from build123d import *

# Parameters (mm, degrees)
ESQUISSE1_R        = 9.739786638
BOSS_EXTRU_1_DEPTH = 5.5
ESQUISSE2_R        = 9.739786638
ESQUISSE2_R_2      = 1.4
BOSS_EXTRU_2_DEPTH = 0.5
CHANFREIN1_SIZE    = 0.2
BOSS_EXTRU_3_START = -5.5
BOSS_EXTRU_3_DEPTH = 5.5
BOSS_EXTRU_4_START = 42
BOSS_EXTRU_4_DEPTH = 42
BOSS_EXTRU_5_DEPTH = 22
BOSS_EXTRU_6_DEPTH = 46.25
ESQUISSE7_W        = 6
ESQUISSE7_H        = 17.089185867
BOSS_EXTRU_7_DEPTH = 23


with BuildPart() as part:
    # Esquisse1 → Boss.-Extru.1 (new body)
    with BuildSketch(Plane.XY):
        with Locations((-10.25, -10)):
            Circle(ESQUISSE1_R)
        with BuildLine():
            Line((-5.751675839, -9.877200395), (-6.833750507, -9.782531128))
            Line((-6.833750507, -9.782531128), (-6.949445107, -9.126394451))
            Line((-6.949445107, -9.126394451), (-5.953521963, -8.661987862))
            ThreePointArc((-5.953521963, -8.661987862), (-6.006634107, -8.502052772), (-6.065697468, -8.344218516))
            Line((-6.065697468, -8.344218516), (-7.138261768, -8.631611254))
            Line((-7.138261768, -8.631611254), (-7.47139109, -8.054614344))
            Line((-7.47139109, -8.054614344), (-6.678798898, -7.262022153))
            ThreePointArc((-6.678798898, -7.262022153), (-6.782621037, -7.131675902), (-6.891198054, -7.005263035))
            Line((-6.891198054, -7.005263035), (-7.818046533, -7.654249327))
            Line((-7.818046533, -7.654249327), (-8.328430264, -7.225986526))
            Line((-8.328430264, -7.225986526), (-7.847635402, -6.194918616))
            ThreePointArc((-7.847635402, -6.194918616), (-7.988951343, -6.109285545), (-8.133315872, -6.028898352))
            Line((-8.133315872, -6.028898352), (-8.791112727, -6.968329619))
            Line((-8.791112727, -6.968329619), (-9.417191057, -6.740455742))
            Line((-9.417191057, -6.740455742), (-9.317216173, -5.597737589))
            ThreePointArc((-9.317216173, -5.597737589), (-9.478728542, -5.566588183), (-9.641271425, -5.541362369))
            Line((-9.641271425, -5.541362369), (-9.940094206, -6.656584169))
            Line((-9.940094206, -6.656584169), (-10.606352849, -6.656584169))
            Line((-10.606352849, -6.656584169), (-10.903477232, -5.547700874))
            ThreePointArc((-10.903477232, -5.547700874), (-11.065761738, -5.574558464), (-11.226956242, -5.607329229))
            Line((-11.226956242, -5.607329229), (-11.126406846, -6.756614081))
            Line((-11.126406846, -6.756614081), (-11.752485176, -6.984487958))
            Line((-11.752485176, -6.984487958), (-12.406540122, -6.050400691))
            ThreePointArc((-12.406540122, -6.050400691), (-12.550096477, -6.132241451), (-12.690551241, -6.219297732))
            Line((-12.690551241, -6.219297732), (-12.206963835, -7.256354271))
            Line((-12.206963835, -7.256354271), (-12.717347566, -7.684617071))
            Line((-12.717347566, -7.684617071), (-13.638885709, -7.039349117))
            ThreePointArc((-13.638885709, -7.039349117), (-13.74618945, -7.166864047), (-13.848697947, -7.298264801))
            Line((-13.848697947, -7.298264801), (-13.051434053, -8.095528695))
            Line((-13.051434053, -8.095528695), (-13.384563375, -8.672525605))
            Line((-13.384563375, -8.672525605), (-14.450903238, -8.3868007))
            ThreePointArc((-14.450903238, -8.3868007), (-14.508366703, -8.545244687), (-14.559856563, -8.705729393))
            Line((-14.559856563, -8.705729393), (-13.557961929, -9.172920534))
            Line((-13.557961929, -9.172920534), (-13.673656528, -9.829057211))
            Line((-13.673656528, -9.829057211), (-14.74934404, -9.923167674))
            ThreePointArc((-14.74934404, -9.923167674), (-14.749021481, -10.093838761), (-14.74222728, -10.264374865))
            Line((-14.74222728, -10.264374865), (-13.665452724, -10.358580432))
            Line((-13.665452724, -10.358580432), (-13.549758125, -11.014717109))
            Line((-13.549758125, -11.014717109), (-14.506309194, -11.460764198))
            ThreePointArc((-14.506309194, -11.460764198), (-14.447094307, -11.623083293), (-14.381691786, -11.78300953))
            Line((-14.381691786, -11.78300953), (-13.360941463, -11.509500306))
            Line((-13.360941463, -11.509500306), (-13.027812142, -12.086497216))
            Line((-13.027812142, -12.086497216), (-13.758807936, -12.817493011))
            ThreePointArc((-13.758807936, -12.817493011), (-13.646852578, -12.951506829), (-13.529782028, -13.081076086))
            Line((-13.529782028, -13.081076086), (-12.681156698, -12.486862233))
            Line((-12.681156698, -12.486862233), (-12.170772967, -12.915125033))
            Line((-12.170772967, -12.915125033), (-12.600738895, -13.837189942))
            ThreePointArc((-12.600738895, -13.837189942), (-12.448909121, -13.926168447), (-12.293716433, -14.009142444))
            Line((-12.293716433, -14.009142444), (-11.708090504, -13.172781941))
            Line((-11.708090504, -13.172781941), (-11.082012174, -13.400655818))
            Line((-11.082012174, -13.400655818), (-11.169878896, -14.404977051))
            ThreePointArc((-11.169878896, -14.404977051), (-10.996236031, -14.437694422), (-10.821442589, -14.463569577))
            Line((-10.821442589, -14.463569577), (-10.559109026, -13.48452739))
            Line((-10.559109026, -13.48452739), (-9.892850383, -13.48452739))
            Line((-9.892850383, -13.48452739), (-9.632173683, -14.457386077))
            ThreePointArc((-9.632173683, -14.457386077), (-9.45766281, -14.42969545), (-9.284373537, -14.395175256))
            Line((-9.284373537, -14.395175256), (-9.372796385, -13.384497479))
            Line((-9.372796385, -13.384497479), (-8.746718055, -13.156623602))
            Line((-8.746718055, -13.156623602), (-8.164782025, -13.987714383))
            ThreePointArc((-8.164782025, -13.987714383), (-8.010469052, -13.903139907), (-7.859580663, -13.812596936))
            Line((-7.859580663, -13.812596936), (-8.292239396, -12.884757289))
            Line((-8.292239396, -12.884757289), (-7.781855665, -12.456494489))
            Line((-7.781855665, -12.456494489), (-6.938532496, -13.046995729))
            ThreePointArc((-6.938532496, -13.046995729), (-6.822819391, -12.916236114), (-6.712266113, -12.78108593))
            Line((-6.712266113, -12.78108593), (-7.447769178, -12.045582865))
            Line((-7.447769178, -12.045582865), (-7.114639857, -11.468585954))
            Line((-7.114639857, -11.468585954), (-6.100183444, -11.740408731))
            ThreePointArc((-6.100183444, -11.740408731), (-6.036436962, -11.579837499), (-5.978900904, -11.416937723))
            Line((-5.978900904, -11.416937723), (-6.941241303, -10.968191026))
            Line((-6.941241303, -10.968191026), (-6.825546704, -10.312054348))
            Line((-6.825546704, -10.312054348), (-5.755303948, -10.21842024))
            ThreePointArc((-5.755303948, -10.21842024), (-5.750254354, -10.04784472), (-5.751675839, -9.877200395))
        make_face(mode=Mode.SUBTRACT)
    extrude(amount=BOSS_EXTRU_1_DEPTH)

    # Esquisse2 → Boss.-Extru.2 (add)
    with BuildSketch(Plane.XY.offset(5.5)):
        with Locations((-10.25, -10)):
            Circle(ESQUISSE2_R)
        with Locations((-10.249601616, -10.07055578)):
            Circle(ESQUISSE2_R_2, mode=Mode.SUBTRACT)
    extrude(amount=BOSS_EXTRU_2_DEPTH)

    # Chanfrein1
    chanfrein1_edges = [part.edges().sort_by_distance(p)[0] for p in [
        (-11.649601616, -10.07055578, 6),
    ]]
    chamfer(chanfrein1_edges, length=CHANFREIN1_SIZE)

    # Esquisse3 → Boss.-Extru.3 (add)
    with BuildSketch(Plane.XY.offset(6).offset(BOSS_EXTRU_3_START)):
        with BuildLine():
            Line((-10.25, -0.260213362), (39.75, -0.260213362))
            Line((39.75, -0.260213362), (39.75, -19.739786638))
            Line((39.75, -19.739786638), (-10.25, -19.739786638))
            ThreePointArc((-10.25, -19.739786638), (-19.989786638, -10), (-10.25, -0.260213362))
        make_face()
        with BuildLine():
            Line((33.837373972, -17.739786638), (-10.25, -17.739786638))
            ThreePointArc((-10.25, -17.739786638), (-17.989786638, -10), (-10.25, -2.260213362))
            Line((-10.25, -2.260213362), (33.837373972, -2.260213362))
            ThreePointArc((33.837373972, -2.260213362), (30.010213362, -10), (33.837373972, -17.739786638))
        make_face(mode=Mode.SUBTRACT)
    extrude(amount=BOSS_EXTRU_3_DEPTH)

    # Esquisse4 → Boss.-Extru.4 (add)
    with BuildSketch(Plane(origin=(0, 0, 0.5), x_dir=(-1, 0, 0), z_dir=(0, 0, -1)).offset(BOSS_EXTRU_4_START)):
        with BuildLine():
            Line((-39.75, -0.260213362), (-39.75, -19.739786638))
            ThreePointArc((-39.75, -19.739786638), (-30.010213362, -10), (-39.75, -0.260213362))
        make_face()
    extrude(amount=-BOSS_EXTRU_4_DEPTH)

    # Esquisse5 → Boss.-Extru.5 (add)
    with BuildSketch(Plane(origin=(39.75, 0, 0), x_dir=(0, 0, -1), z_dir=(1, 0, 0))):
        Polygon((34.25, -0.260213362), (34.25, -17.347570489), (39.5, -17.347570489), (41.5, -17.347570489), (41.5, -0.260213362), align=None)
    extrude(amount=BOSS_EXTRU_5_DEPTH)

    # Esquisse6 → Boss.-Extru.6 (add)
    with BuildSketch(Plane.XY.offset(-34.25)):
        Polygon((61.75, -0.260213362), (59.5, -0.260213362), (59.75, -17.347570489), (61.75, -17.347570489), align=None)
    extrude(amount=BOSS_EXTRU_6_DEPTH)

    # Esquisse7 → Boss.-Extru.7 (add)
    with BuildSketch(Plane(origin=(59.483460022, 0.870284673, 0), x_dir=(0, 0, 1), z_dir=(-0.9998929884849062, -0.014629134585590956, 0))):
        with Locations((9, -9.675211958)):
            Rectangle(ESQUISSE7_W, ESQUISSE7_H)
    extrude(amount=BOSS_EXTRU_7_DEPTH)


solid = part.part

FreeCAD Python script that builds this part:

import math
import FreeCAD as App
import Part
import Sketcher
from FreeCAD import Vector
Q = App.Units.Quantity


def edges_at(feature, points):
    """Names of the edges that pass closest to the given points."""
    edges = feature.Shape.Edges
    near = lambda p: min(range(len(edges)), key=lambda i: edges[i].distToShape(Part.Vertex(*p))[0])
    return sorted({f"Edge{near(p) + 1}" for p in points})


def add_polygon(sketch, points):
    """Adds a closed chain of lines whose ends are joined by coincident constraints."""
    first, n = sketch.GeometryCount, len(points)
    for a, b in zip(points, points[1:] + points[:1]):
        sketch.addGeometry(Part.LineSegment(App.Vector(*a, 0), App.Vector(*b, 0)), False)
    for i in range(n):
        sketch.addConstraint(Sketcher.Constraint("Coincident", first + i, 2, first + (i + 1) % n, 1))

doc = App.newDocument("Part")
params = doc.addObject("Spreadsheet::Sheet", "Params")
for row, (alias, value) in enumerate([
    ("sketch1_radius", "4.500001 mm"),
    ("pad1_length", "5.5 mm"),
    ("sketch2_diameter", "2.8 mm"),
    ("pad2_length", "0.5 mm"),
    ("chamfer_size", "0.2 mm"),
    ("sketch3_width", "50 mm"),
    ("pad3_length", "5.5 mm"),
    ("pad4_length", "42 mm"),
    ("sketch5_height", "7.25 mm"),
    ("pad5_length", "22 mm"),
    ("sketch6_width", "2 mm"),
    ("sketch6_width2", "2.25 mm"),
    ("pad6_length", "46.25 mm"),
    ("sketch7_width", "6 mm"),
    ("pad7_length", "23 mm"),
], start=1):
    params.set(f"A{row}", alias)
    params.set(f"B{row}", "=" + value)
    params.setAlias(f"B{row}", alias)

body = doc.addObject("PartDesign::Body", "Body")

# Sketch on XY plane
sketch1 = body.newObject("Sketcher::SketchObject", "Sketch")
sketch1.AttachmentSupport = (doc.getObject("XY_Plane"), [""])
sketch1.MapMode = "FlatFace"
sketch1.addGeometry(Part.Circle(Vector(-10.25, -10, 0), Vector(0, 0, 1), 9.74), False)
sketch1.addGeometry(Part.LineSegment(Vector(-6.83, -9.78, 0), Vector(-5.75, -9.88, 0)), False)
sketch1.addGeometry(Part.ArcOfCircle(Part.Circle(Vector(-10.25, -10, 0), Vector(0, 0, 1), 4.5), math.radians(-2.78), math.radians(1.56)), False)
sketch1.addGeometry(Part.LineSegment(Vector(-5.76, -10.22, 0), Vector(-6.83, -10.31, 0)), False)
sketch1.addGeometry(Part.LineSegment(Vector(-6.83, -10.31, 0), Vector(-6.94, -10.97, 0)), False)
sketch1.addGeometry(Part.LineSegment(Vector(-6.94, -10.97, 0), Vector(-5.98, -11.42, 0)), False)
sketch1.addGeometry(Part.ArcOfCircle(Part.Circle(Vector(-10.25, -10, 0), Vector(0, 0, 1), 4.5), math.radians(-22.75), math.radians(-18.35)), False)
sketch1.addGeometry(Part.LineSegment(Vector(-6.1, -11.74, 0), Vector(-7.11, -11.47, 0)), False)
sketch1.addGeometry(Part.LineSegment(Vector(-7.11, -11.47, 0), Vector(-7.45, -12.05, 0)), False)
sketch1.addGeometry(Part.LineSegment(Vector(-7.45, -12.05, 0), Vector(-6.71, -12.78, 0)), False)
sketch1.addGeometry(Part.ArcOfCircle(Part.Circle(Vector(-10.25, -10, 0), Vector(0, 0, 1), 4.5), math.radians(-42.62), math.radians(-38.17)), False)
sketch1.addGeometry(Part.LineSegment(Vector(-6.94, -13.05, 0), Vector(-7.78, -12.46, 0)), False)
sketch1.addGeometry(Part.LineSegment(Vector(-7.78, -12.46, 0), Vector(-8.29, -12.88, 0)), False)
sketch1.addGeometry(Part.LineSegment(Vector(-8.29, -12.88, 0), Vector(-7.86, -13.81, 0)), False)
sketch1.addGeometry(Part.ArcOfCircle(Part.Circle(Vector(-10.25, -10, 0), Vector(0, 0, 1), 4.5), math.radians(-62.39), math.radians(-57.91)), False)
sketch1.addGeometry(Part.LineSegment(Vector(-8.16, -13.99, 0), Vector(-8.75, -13.16, 0)), False)
sketch1.addGeometry(Part.LineSegment(Vector(-8.75, -13.16, 0), Vector(-9.37, -13.38, 0)), False)
sketch1.addGeometry(Part.LineSegment(Vector(-9.37, -13.38, 0), Vector(-9.28, -14.4, 0)), False)
sketch1.addGeometry(Part.ArcOfCircle(Part.Circle(Vector(-10.25, -10, 0), Vector(0, 0, 1), 4.5), math.radians(-82.11), math.radians(-77.61)), False)
sketch1.addGeometry(Part.LineSegment(Vector(-9.63, -14.46, 0), Vector(-9.89, -13.48, 0)), False)
sketch1.addGeometry(Part.LineSegment(Vector(-9.89, -13.48, 0), Vector(-10.56, -13.48, 0)), False)
sketch1.addGeometry(Part.LineSegment(Vector(-10.56, -13.48, 0), Vector(-10.82, -14.46, 0)), False)
sketch1.addGeometry(Part.ArcOfCircle(Part.Circle(Vector(-10.25, -10, 0), Vector(0, 0, 1), 4.5), math.radians(-101.8), math.radians(-97.3)), False)
sketch1.addGeometry(Part.LineSegment(Vector(-11.17, -14.4, 0), Vector(-11.08, -13.4, 0)), False)
sketch1.addGeometry(Part.LineSegment(Vector(-11.08, -13.4, 0), Vector(-11.71, -13.17, 0)), False)
sketch1.addGeometry(Part.LineSegment(Vector(-11.71, -13.17, 0), Vector(-12.29, -14.01, 0)), False)
sketch1.addGeometry(Part.ArcOfCircle(Part.Circle(Vector(-10.25, -10, 0), Vector(0, 0, 1), 4.5), math.radians(-121.49), math.radians(-117.01)), False)
sketch1.addGeometry(Part.LineSegment(Vector(-12.6, -13.84, 0), Vector(-12.17, -12.92, 0)), False)
sketch1.addGeometry(Part.LineSegment(Vector(-12.17, -12.92, 0), Vector(-12.68, -12.49, 0)), False)
sketch1.addGeometry(Part.LineSegment(Vector(-12.68, -12.49, 0), Vector(-13.53, -13.08, 0)), False)
sketch1.addGeometry(Part.ArcOfCircle(Part.Circle(Vector(-10.25, -10, 0), Vector(0, 0, 1), 4.5), math.radians(-141.24), math.radians(-136.79)), False)
sketch1.addGeometry(Part.LineSegment(Vector(-13.76, -12.82, 0), Vector(-13.03, -12.09, 0)), False)
sketch1.addGeometry(Part.LineSegment(Vector(-13.03, -12.09, 0), Vector(-13.36, -11.51, 0)), False)
sketch1.addGeometry(Part.LineSegment(Vector(-13.36, -11.51, 0), Vector(-14.38, -11.78, 0)), False)
sketch1.addGeometry(Part.ArcOfCircle(Part.Circle(Vector(-10.25, -10, 0), Vector(0, 0, 1), 4.5), math.radians(-161.06), math.radians(-156.66)), False)
sketch1.addGeometry(Part.LineSegment(Vector(-14.51, -11.46, 0), Vector(-13.55, -11.01, 0)), False)
sketch1.addGeometry(Part.LineSegment(Vector(-13.55, -11.01, 0), Vector(-13.67, -10.36, 0)), False)
sketch1.addGeometry(Part.LineSegment(Vector(-13.67, -10.36, 0), Vector(-14.74, -10.26, 0)), False)
sketch1.addGeometry(Part.ArcOfCircle(Part.Circle(Vector(-10.25, -10, 0), Vector(0, 0, 1), 4.5), math.radians(179.02), math.radians(183.37)), False)
sketch1.addGeometry(Part.LineSegment(Vector(-14.75, -9.92, 0), Vector(-13.67, -9.83, 0)), False)
sketch1.addGeometry(Part.LineSegment(Vector(-13.67, -9.83, 0), Vector(-13.56, -9.17, 0)), False)
sketch1.addGeometry(Part.LineSegment(Vector(-13.56, -9.17, 0), Vector(-14.56, -8.71, 0)), False)
sketch1.addGeometry(Part.ArcOfCircle(Part.Circle(Vector(-10.25, -10, 0), Vector(0, 0, 1), 4.5), math.radians(158.99), math.radians(163.28)), False)
sketch1.addGeometry(Part.LineSegment(Vector(-14.45, -8.39, 0), Vector(-13.38, -8.67, 0)), False)
sketch1.addGeometry(Part.LineSegment(Vector(-13.38, -8.67, 0), Vector(-13.05, -8.1, 0)), False)
sketch1.addGeometry(Part.LineSegment(Vector(-13.05, -8.1, 0), Vector(-13.85, -7.3, 0)), False)
sketch1.addGeometry(Part.ArcOfCircle(Part.Circle(Vector(-10.25, -10, 0), Vector(0, 0, 1), 4.5), math.radians(138.86), math.radians(143.1)), False)
sketch1.addGeometry(Part.LineSegment(Vector(-13.64, -7.04, 0), Vector(-12.72, -7.68, 0)), False)
sketch1.addGeometry(Part.LineSegment(Vector(-12.72, -7.68, 0), Vector(-12.21, -7.26, 0)), False)
sketch1.addGeometry(Part.LineSegment(Vector(-12.21, -7.26, 0), Vector(-12.69, -6.22, 0)), False)
sketch1.addGeometry(Part.ArcOfCircle(Part.Circle(Vector(-10.25, -10, 0), Vector(0, 0, 1), 4.5), math.radians(118.64), math.radians(122.84)), False)
sketch1.addGeometry(Part.LineSegment(Vector(-12.41, -6.05, 0), Vector(-11.75, -6.98, 0)), False)
sketch1.addGeometry(Part.LineSegment(Vector(-11.75, -6.98, 0), Vector(-11.13, -6.76, 0)), False)
sketch1.addGeometry(Part.LineSegment(Vector(-11.13, -6.76, 0), Vector(-11.23, -5.61, 0)), False)
sketch1.addGeometry(Part.ArcOfCircle(Part.Circle(Vector(-10.25, -10, 0), Vector(0, 0, 1), 4.5), math.radians(98.35), math.radians(102.54)), False)
sketch1.addGeometry(Part.LineSegment(Vector(-10.9, -5.55, 0), Vector(-10.61, -6.66, 0)), False)
sketch1.addGeometry(Part.LineSegment(Vector(-10.61, -6.66, 0), Vector(-9.94, -6.66, 0)), False)
sketch1.addGeometry(Part.LineSegment(Vector(-9.94, -6.66, 0), Vector(-9.64, -5.54, 0)), False)
sketch1.addGeometry(Part.ArcOfCircle(Part.Circle(Vector(-10.25, -10, 0), Vector(0, 0, 1), 4.5), math.radians(78.04), math.radians(82.23)), False)
sketch1.addGeometry(Part.LineSegment(Vector(-9.32, -5.6, 0), Vector(-9.42, -6.74, 0)), False)
sketch1.addGeometry(Part.LineSegment(Vector(-9.42, -6.74, 0), Vector(-8.79, -6.97, 0)), False)
sketch1.addGeometry(Part.LineSegment(Vector(-8.79, -6.97, 0), Vector(-8.13, -6.03, 0)), False)
sketch1.addGeometry(Part.ArcOfCircle(Part.Circle(Vector(-10.25, -10, 0), Vector(0, 0, 1), 4.5), math.radians(57.73), math.radians(61.94)), False)
sketch1.addGeometry(Part.LineSegment(Vector(-7.85, -6.19, 0), Vector(-8.33, -7.23, 0)), False)
sketch1.addGeometry(Part.LineSegment(Vector(-8.33, -7.23, 0), Vector(-7.82, -7.65, 0)), False)
sketch1.addGeometry(Part.LineSegment(Vector(-7.82, -7.65, 0), Vector(-6.89, -7.01, 0)), False)
sketch1.addGeometry(Part.ArcOfCircle(Part.Circle(Vector(-10.25, -10, 0), Vector(0, 0, 1), 4.5), math.radians(37.48), math.radians(41.72)), False)
sketch1.addGeometry(Part.LineSegment(Vector(-6.68, -7.26, 0), Vector(-7.47, -8.05, 0)), False)
sketch1.addGeometry(Part.LineSegment(Vector(-7.47, -8.05, 0), Vector(-7.14, -8.63, 0)), False)
sketch1.addGeometry(Part.LineSegment(Vector(-7.14, -8.63, 0), Vector(-6.07, -8.34, 0)), False)
sketch1.addGeometry(Part.ArcOfCircle(Part.Circle(Vector(-10.25, -10, 0), Vector(0, 0, 1), 4.5), math.radians(17.3), math.radians(21.59)), False)
sketch1.addGeometry(Part.LineSegment(Vector(-5.95, -8.66, 0), Vector(-6.95, -9.13, 0)), False)
sketch1.addGeometry(Part.LineSegment(Vector(-6.95, -9.13, 0), Vector(-6.83, -9.78, 0)), False)
sketch1.addConstraint(Sketcher.Constraint("Coincident", 1, 2, 2, 2))
sketch1.addConstraint(Sketcher.Constraint("Coincident", 2, 1, 3, 1))
sketch1.addConstraint(Sketcher.Constraint("Coincident", 3, 2, 4, 1))
sketch1.addConstraint(Sketcher.Constraint("Coincident", 4, 2, 5, 1))
sketch1.addConstraint(Sketcher.Constraint("Coincident", 5, 2, 6, 2))
sketch1.addConstraint(Sketcher.Constraint("Coincident", 6, 1, 7, 1))
sketch1.addConstraint(Sketcher.Constraint("Coincident", 7, 2, 8, 1))
sketch1.addConstraint(Sketcher.Constraint("Coincident", 8, 2, 9, 1))
sketch1.addConstraint(Sketcher.Constraint("Coincident", 9, 2, 10, 2))
sketch1.addConstraint(Sketcher.Constraint("Coincident", 10, 1, 11, 1))
sketch1.addConstraint(Sketcher.Constraint("Coincident", 11, 2, 12, 1))
sketch1.addConstraint(Sketcher.Constraint("Coincident", 12, 2, 13, 1))
sketch1.addConstraint(Sketcher.Constraint("Coincident", 13, 2, 14, 2))
sketch1.addConstraint(Sketcher.Constraint("Coincident", 14, 1, 15, 1))
sketch1.addConstraint(Sketcher.Constraint("Coincident", 15, 2, 16, 1))
sketch1.addConstraint(Sketcher.Constraint("Coincident", 16, 2, 17, 1))
sketch1.addConstraint(Sketcher.Constraint("Coincident", 17, 2, 18, 2))
sketch1.addConstraint(Sketcher.Constraint("Coincident", 18, 1, 19, 1))
sketch1.addConstraint(Sketcher.Constraint("Coincident", 19, 2, 20, 1))
sketch1.addConstraint(Sketcher.Constraint("Coincident", 20, 2, 21, 1))
sketch1.addConstraint(Sketcher.Constraint("Coincident", 21, 2, 22, 2))
sketch1.addConstraint(Sketcher.Constraint("Coincident", 22, 1, 23, 1))
sketch1.addConstraint(Sketcher.Constraint("Coincident", 23, 2, 24, 1))
sketch1.addConstraint(Sketcher.Constraint("Coincident", 24, 2, 25, 1))
sketch1.addConstraint(Sketcher.Constraint("Coincident", 25, 2, 26, 2))
sketch1.addConstraint(Sketcher.Constraint("Coincident", 26, 1, 27, 1))
sketch1.addConstraint(Sketcher.Constraint("Coincident", 27, 2, 28, 1))
sketch1.addConstraint(Sketcher.Constraint("Coincident", 28, 2, 29, 1))
sketch1.addConstraint(Sketcher.Constraint("Coincident", 29, 2, 30, 2))
sketch1.addConstraint(Sketcher.Constraint("Coincident", 30, 1, 31, 1))
sketch1.addConstraint(Sketcher.Constraint("Coincident", 31, 2, 32, 1))
sketch1.addConstraint(Sketcher.Constraint("Coincident", 32, 2, 33, 1))
sketch1.addConstraint(Sketcher.Constraint("Coincident", 33, 2, 34, 2))
sketch1.addConstraint(Sketcher.Constraint("Coincident", 34, 1, 35, 1))
sketch1.addConstraint(Sketcher.Constraint("Coincident", 35, 2, 36, 1))
sketch1.addConstraint(Sketcher.Constraint("Coincident", 36, 2, 37, 1))
sketch1.addConstraint(Sketcher.Constraint("Coincident", 37, 2, 38, 2))
sketch1.addConstraint(Sketcher.Constraint("Coincident", 38, 1, 39, 1))
sketch1.addConstraint(Sketcher.Constraint("Coincident", 39, 2, 40, 1))
sketch1.addConstraint(Sketcher.Constraint("Coincident", 40, 2, 41, 1))
sketch1.addConstraint(Sketcher.Constraint("Coincident", 41, 2, 42, 2))
sketch1.addConstraint(Sketcher.Constraint("Coincident", 42, 1, 43, 1))
sketch1.addConstraint(Sketcher.Constraint("Coincident", 43, 2, 44, 1))
sketch1.addConstraint(Sketcher.Constraint("Coincident", 44, 2, 45, 1))
sketch1.addConstraint(Sketcher.Constraint("Coincident", 45, 2, 46, 2))
sketch1.addConstraint(Sketcher.Constraint("Coincident", 46, 1, 47, 1))
sketch1.addConstraint(Sketcher.Constraint("Coincident", 47, 2, 48, 1))
sketch1.addConstraint(Sketcher.Constraint("Coincident", 48, 2, 49, 1))
sketch1.addConstraint(Sketcher.Constraint("Coincident", 49, 2, 50, 2))
sketch1.addConstraint(Sketcher.Constraint("Coincident", 50, 1, 51, 1))
sketch1.addConstraint(Sketcher.Constraint("Coincident", 51, 2, 52, 1))
sketch1.addConstraint(Sketcher.Constraint("Coincident", 52, 2, 53, 1))
sketch1.addConstraint(Sketcher.Constraint("Coincident", 53, 2, 54, 2))
sketch1.addConstraint(Sketcher.Constraint("Coincident", 54, 1, 55, 1))
sketch1.addConstraint(Sketcher.Constraint("Coincident", 55, 2, 56, 1))
sketch1.addConstraint(Sketcher.Constraint("Coincident", 56, 2, 57, 1))
sketch1.addConstraint(Sketcher.Constraint("Coincident", 57, 2, 58, 2))
sketch1.addConstraint(Sketcher.Constraint("Coincident", 58, 1, 59, 1))
sketch1.addConstraint(Sketcher.Constraint("Coincident", 59, 2, 60, 1))
sketch1.addConstraint(Sketcher.Constraint("Coincident", 60, 2, 61, 1))
sketch1.addConstraint(Sketcher.Constraint("Coincident", 61, 2, 62, 2))
sketch1.addConstraint(Sketcher.Constraint("Coincident", 62, 1, 63, 1))
sketch1.addConstraint(Sketcher.Constraint("Coincident", 63, 2, 64, 1))
sketch1.addConstraint(Sketcher.Constraint("Coincident", 64, 2, 65, 1))
sketch1.addConstraint(Sketcher.Constraint("Coincident", 65, 2, 66, 2))
sketch1.addConstraint(Sketcher.Constraint("Coincident", 66, 1, 67, 1))
sketch1.addConstraint(Sketcher.Constraint("Coincident", 67, 2, 68, 1))
sketch1.addConstraint(Sketcher.Constraint("Coincident", 68, 2, 69, 1))
sketch1.addConstraint(Sketcher.Constraint("Coincident", 69, 2, 70, 2))
sketch1.addConstraint(Sketcher.Constraint("Coincident", 70, 1, 71, 1))
sketch1.addConstraint(Sketcher.Constraint("Coincident", 71, 2, 72, 1))
sketch1.addConstraint(Sketcher.Constraint("Coincident", 72, 2, 1, 1))
sketch1.addConstraint(Sketcher.Constraint("Horizontal", 20))
sketch1.addConstraint(Sketcher.Constraint("Horizontal", 56))
sketch1.addConstraint(Sketcher.Constraint("Coincident", 2, 3, 0, 3))
sketch1.addConstraint(Sketcher.Constraint("Coincident", 6, 3, 0, 3))
sketch1.addConstraint(Sketcher.Constraint("Coincident", 10, 3, 0, 3))
sketch1.addConstraint(Sketcher.Constraint("Coincident", 14, 3, 0, 3))
sketch1.addConstraint(Sketcher.Constraint("Coincident", 18, 3, 0, 3))
sketch1.addConstraint(Sketcher.Constraint("Coincident", 22, 3, 0, 3))
sketch1.addConstraint(Sketcher.Constraint("Coincident", 26, 3, 0, 3))
sketch1.addConstraint(Sketcher.Constraint("Coincident", 30, 3, 0, 3))
sketch1.addConstraint(Sketcher.Constraint("Coincident", 34, 3, 0, 3))
sketch1.addConstraint(Sketcher.Constraint("Coincident", 38, 3, 0, 3))
sketch1.addConstraint(Sketcher.Constraint("Coincident", 42, 3, 0, 3))
sketch1.addConstraint(Sketcher.Constraint("Coincident", 46, 3, 0, 3))
sketch1.addConstraint(Sketcher.Constraint("Coincident", 50, 3, 0, 3))
sketch1.addConstraint(Sketcher.Constraint("Coincident", 54, 3, 0, 3))
sketch1.addConstraint(Sketcher.Constraint("Coincident", 58, 3, 0, 3))
sketch1.addConstraint(Sketcher.Constraint("Coincident", 62, 3, 0, 3))
sketch1.addConstraint(Sketcher.Constraint("Coincident", 66, 3, 0, 3))
sketch1.addConstraint(Sketcher.Constraint("Coincident", 70, 3, 0, 3))
sketch1.addConstraint(Sketcher.Constraint("Equal", 2, 6))
sketch1.addConstraint(Sketcher.Constraint("Equal", 6, 10))
sketch1.addConstraint(Sketcher.Constraint("Equal", 10, 14))
sketch1.addConstraint(Sketcher.Constraint("Equal", 14, 18))
sketch1.addConstraint(Sketcher.Constraint("Equal", 18, 22))
sketch1.addConstraint(Sketcher.Constraint("Equal", 22, 26))
sketch1.addConstraint(Sketcher.Constraint("Equal", 26, 30))
sketch1.addConstraint(Sketcher.Constraint("Equal", 30, 34))
sketch1.addConstraint(Sketcher.Constraint("Equal", 34, 38))
sketch1.addConstraint(Sketcher.Constraint("Equal", 38, 42))
sketch1.addConstraint(Sketcher.Constraint("Equal", 42, 46))
sketch1.addConstraint(Sketcher.Constraint("Equal", 46, 50))
sketch1.addConstraint(Sketcher.Constraint("Equal", 50, 54))
sketch1.addConstraint(Sketcher.Constraint("Equal", 54, 58))
sketch1.addConstraint(Sketcher.Constraint("Equal", 58, 62))
sketch1.addConstraint(Sketcher.Constraint("Equal", 62, 66))
sketch1.addConstraint(Sketcher.Constraint("Equal", 66, 70))
sketch1.addConstraint(Sketcher.Constraint("Perpendicular", 3, 17))
sketch1.addConstraint(Sketcher.Constraint("Perpendicular", 7, 21))
sketch1.addConstraint(Sketcher.Constraint("Perpendicular", 1, 23))
sketch1.addConstraint(Sketcher.Constraint("Perpendicular", 11, 25))
sketch1.addConstraint(Sketcher.Constraint("Perpendicular", 5, 27))
sketch1.addConstraint(Sketcher.Constraint("Perpendicular", 15, 29))
sketch1.addConstraint(Sketcher.Constraint("Perpendicular", 9, 31))
sketch1.addConstraint(Sketcher.Constraint("Perpendicular", 19, 33))
sketch1.addConstraint(Sketcher.Constraint("Perpendicular", 13, 35))
sketch1.addConstraint(Sketcher.Constraint("Perpendicular", 23, 37))
sketch1.addConstraint(Sketcher.Constraint("Perpendicular", 17, 39))
sketch1.addConstraint(Sketcher.Constraint("Parallel", 4, 40))
sketch1.addConstraint(Sketcher.Constraint("Perpendicular", 27, 41))
sketch1.addConstraint(Sketcher.Constraint("Perpendicular", 21, 43))
sketch1.addConstraint(Sketcher.Constraint("Parallel", 8, 44))
sketch1.addConstraint(Sketcher.Constraint("Perpendicular", 31, 45))
sketch1.addConstraint(Sketcher.Constraint("Perpendicular", 25, 47))
sketch1.addConstraint(Sketcher.Constraint("Parallel", 12, 48))
sketch1.addConstraint(Sketcher.Constraint("Perpendicular", 35, 49))
sketch1.addConstraint(Sketcher.Constraint("Perpendicular", 29, 51))
sketch1.addConstraint(Sketcher.Constraint("Parallel", 16, 52))
sketch1.addConstraint(Sketcher.Constraint("Perpendicular", 39, 53))
sketch1.addConstraint(Sketcher.Constraint("Perpendicular", 33, 55))
sketch1.addConstraint(Sketcher.Constraint("Perpendicular", 43, 57))
sketch1.addConstraint(Sketcher.Constraint("Perpendicular", 37, 59))
sketch1.addConstraint(Sketcher.Constraint("Parallel", 24, 60))
sketch1.addConstraint(Sketcher.Constraint("Perpendicular", 47, 61))
sketch1.addConstraint(Sketcher.Constraint("Perpendicular", 41, 63))
sketch1.addConstraint(Sketcher.Constraint("Parallel", 28, 64))
sketch1.addConstraint(Sketcher.Constraint("Perpendicular", 51, 65))
sketch1.addConstraint(Sketcher.Constraint("Perpendicular", 45, 67))
sketch1.addConstraint(Sketcher.Constraint("Parallel", 32, 68))
sketch1.addConstraint(Sketcher.Constraint("Perpendicular", 55, 69))
sketch1.addConstraint(Sketcher.Constraint("Perpendicular", 49, 71))
sketch1.addConstraint(Sketcher.Constraint("Parallel", 36, 72))
sketch1.addConstraint(Sketcher.Constraint("Equal", 20, 56))
sketch1.addConstraint(Sketcher.Constraint("Equal", 4, 8))
sketch1.addConstraint(Sketcher.Constraint("Equal", 8, 12))
sketch1.addConstraint(Sketcher.Constraint("Equal", 12, 16))
sketch1.addConstraint(Sketcher.Constraint("Equal", 16, 24))
sketch1.addConstraint(Sketcher.Constraint("Equal", 24, 28))
sketch1.addConstraint(Sketcher.Constraint("Equal", 28, 32))
sketch1.addConstraint(Sketcher.Constraint("Equal", 32, 36))
sketch1.addConstraint(Sketcher.Constraint("Equal", 36, 40))
sketch1.addConstraint(Sketcher.Constraint("Equal", 40, 44))
sketch1.addConstraint(Sketcher.Constraint("Equal", 44, 48))
sketch1.addConstraint(Sketcher.Constraint("Equal", 48, 52))
sketch1.addConstraint(Sketcher.Constraint("Equal", 52, 60))
sketch1.addConstraint(Sketcher.Constraint("Equal", 60, 64))
sketch1.addConstraint(Sketcher.Constraint("Equal", 64, 68))
sketch1.addConstraint(Sketcher.Constraint("Equal", 68, 72))
sketch1.addConstraint(Sketcher.Constraint("Radius", 2, Q("4.500001 mm")))
sketch1.addConstraint(Sketcher.Constraint("Angle", 1, Q("-5 deg")))
sketch1.addConstraint(Sketcher.Constraint("Angle", 3, Q("-175 deg")))
sketch1.addConstraint(Sketcher.Constraint("Angle", 4, Q("-100 deg")))
sketch1.addConstraint(Sketcher.Constraint("Angle", 5, Q("-25 deg")))
sketch1.addConstraint(Sketcher.Constraint("Angle", 7, Q("165 deg")))
sketch1.addConstraint(Sketcher.Constraint("Angle", 8, Q("-120 deg")))
sketch1.addConstraint(Sketcher.Constraint("Angle", 9, Q("-45 deg")))
sketch1.addConstraint(Sketcher.Constraint("Angle", 11, Q("145 deg")))
sketch1.addConstraint(Sketcher.Constraint("Angle", 12, Q("-140 deg")))
sketch1.addConstraint(Sketcher.Constraint("Angle", 13, Q("-65 deg")))
sketch1.addConstraint(Sketcher.Constraint("Angle", 15, Q("125 deg")))
sketch1.addConstraint(Sketcher.Constraint("Angle", 16, Q("-160 deg")))
sketch1.addConstraint(Sketcher.Constraint("Angle", 19, Q("105 deg")))
sketch1.addConstraint(Sketcher.Constraint("Angle", 24, Q("160 deg")))
sketch1.addConstraint(Sketcher.Constraint("Angle", 28, Q("140 deg")))
sketch1.addConstraint(Sketcher.Constraint("Angle", 32, Q("120 deg")))
sketch1.addConstraint(Sketcher.Constraint("Angle", 36, Q("100 deg")))
sketch1.addConstraint(Sketcher.Constraint("DistanceY", 0, 3, -1, 1, Q("10 mm")))
sketch1.addConstraint(Sketcher.Constraint("DistanceX", 0, 3, -1, 1, Q("10.25 mm")))
sketch1.addConstraint(Sketcher.Constraint("Distance", 55, Q("1.148 mm")))
sketch1.addConstraint(Sketcher.Constraint("Diameter", 0, Q("19.479573 mm")))
sketch1.addConstraint(Sketcher.Constraint("Distance", 45, Q("1.127501 mm")))
sketch1.addConstraint(Sketcher.Constraint("Distance", 69, Q("1.1104 mm")))
sketch1.addConstraint(Sketcher.Constraint("DistanceX", 20, 2, 20, 1, Q("0.666259 mm")))
sketch1.addConstraint(Sketcher.Constraint("DistanceY", 1, 2, -1, 1, Q("9.8772 mm")))
sketch1.addConstraint(Sketcher.Constraint("DistanceX", 5, 2, -1, 1, Q("5.978901 mm")))
sketch1.addConstraint(Sketcher.Constraint("DistanceY", 32, 2, -1, 1, Q("11.5095 mm")))
sketch1.addConstraint(Sketcher.Constraint("DistanceY", 42, 1, -1, 1, Q("8.386801 mm")))
sketch1.addConstraint(Sketcher.Constraint("DistanceY", 50, 1, -1, 1, Q("6.050401 mm")))
sketch1.addConstraint(Sketcher.Constraint("DistanceY", 54, 1, -1, 1, Q("5.547701 mm")))
sketch1.addConstraint(Sketcher.Constraint("DistanceY", 61, 2, -1, 1, Q("6.028898 mm")))
sketch1.addConstraint(Sketcher.Constraint("DistanceX", 65, 2, -1, 1, Q("6.891198 mm")))
sketch1.addConstraint(Sketcher.Constraint("DistanceX", 66, 1, -1, 1, Q("6.678799 mm")))
sketch1.addConstraint(Sketcher.Constraint("Distance", 1, Q("1.086208 mm")))
sketch1.addConstraint(Sketcher.Constraint("Distance", 3, Q("1.074331 mm")))
sketch1.addConstraint(Sketcher.Constraint("Distance", 4, Q("0.666259 mm")))
sketch1.addConstraint(Sketcher.Constraint("Distance", 9, Q("1.040158 mm")))
sketch1.addConstraint(Sketcher.Constraint("Distance", 17, Q("1.014538 mm")))
sketch1.addConstraint(Sketcher.Constraint("Distance", 21, Q("1.013579 mm")))
sketch1.addConstraint(Sketcher.Constraint("Distance", 29, Q("1.03598 mm")))
sketch1.addConstraint(Sketcher.Constraint("Distance", 33, Q("1.056758 mm")))
sketch1.addConstraint(Sketcher.Constraint("Distance", 41, Q("1.105468 mm")))
sketch1.addConstraint(Sketcher.Constraint("Distance", 47, Q("1.12499 mm")))
sketch1.addConstraint(Sketcher.Constraint("Distance", 51, Q("1.14031 mm")))
sketch1.addConstraint(Sketcher.Constraint("DistanceY", 6, 1, -1, 1, Q("11.740409 mm")))
sketch1.addConstraint(Sketcher.Constraint("DistanceX", 12, 2, -1, 1, Q("8.292239 mm")))
sketch1.addConstraint(Sketcher.Constraint("DistanceX", 13, 2, -1, 1, Q("7.859581 mm")))
sketch1.addConstraint(Sketcher.Constraint("DistanceX", 15, 2, -1, 1, Q("8.746718 mm")))
sketch1.addConstraint(Sketcher.Constraint("DistanceX", 19, 2, -1, 1, Q("9.89285 mm")))
sketch1.addConstraint(Sketcher.Constraint("DistanceX", 22, 1, -1, 1, Q("11.169879 mm")))
sketch1.addConstraint(Sketcher.Constraint("DistanceX", 24, 2, -1, 1, Q("11.708091 mm")))
sketch1.addConstraint(Sketcher.Constraint("DistanceX", 26, 1, -1, 1, Q("12.600739 mm")))
sketch1.addConstraint(Sketcher.Constraint("DistanceX", 34, 1, -1, 1, Q("14.506309 mm")))
sketch1.addConstraint(Sketcher.Constraint("DistanceX", 35, 2, -1, 1, Q("13.549758 mm")))
sketch1.addConstraint(Sketcher.Constraint("DistanceX", 40, 2, -1, 1, Q("13.557962 mm")))
sketch1.addConstraint(Sketcher.Constraint("DistanceY", 46, 1, -1, 1, Q("7.039349 mm")))
sketch1.addConstraint(Sketcher.Constraint("DistanceX", 59, 2, -1, 1, Q("9.417191 mm")))
sketch1.addConstraint(Sketcher.Constraint("DistanceY", 62, 1, -1, 1, Q("6.194919 mm")))
sketch1.setExpression("Constraints[160]", "Params.sketch1_radius")
pad1 = body.newObject("PartDesign::Pad", "Pad")
pad1.Profile = sketch1
pad1.setExpression("Length", "Params.pad1_length")

# Sketch on XY plane
sketch2 = body.newObject("Sketcher::SketchObject", "Sketch001")
sketch2.AttachmentSupport = (doc.getObject("XY_Plane"), [""])
sketch2.MapMode = "FlatFace"
sketch2.AttachmentOffset = App.Placement(Vector(0, 0, 5.5), App.Rotation())
sketch2.addGeometry(Part.Circle(Vector(-10.2, -10, 0), Vector(0, 0, 1), 9.7), False)
sketch2.addGeometry(Part.Circle(Vector(-10.2, -10.1, 0), Vector(0, 0, 1), 1.4), False)
sketch2.addConstraint(Sketcher.Constraint("Diameter", 1, Q("2.8 mm")))
sketch2.addConstraint(Sketcher.Constraint("DistanceY", 0, 3, -1, 1, Q("10 mm")))
sketch2.addConstraint(Sketcher.Constraint("DistanceX", 0, 3, -1, 1, Q("10.25 mm")))
sketch2.addConstraint(Sketcher.Constraint("Diameter", 0, Q("19.479573 mm")))
sketch2.addConstraint(Sketcher.Constraint("DistanceX", 1, 3, -1, 1, Q("10.249602 mm")))
sketch2.addConstraint(Sketcher.Constraint("DistanceY", 1, 3, -1, 1, Q("10.070556 mm")))
sketch2.setExpression("Constraints[0]", "Params.sketch2_diameter")
pad2 = body.newObject("PartDesign::Pad", "Pad001")
pad2.Profile = sketch2
pad2.setExpression("Length", "Params.pad2_length")
doc.recompute()

chamfer = body.newObject("PartDesign::Chamfer", "Chamfer")
chamfer.Base = (pad2, edges_at(pad2, [(-11.65, -10.071, 6)]))
chamfer.setExpression("Size", "Params.chamfer_size")

# Sketch on XY plane
sketch3 = body.newObject("Sketcher::SketchObject", "Sketch002")
sketch3.AttachmentSupport = (doc.getObject("XY_Plane"), [""])
sketch3.MapMode = "FlatFace"
sketch3.AttachmentOffset = App.Placement(Vector(0, 0, 0.5), App.Rotation())
sketch3.addGeometry(Part.LineSegment(Vector(40, 0, 0), Vector(-10, 0, 0)), False)
sketch3.addGeometry(Part.ArcOfCircle(Part.Circle(Vector(-10, -10, 0), Vector(0, 0, 1), 10), math.radians(90), math.radians(270)), False)
sketch3.addGeometry(Part.LineSegment(Vector(-10, -20, 0), Vector(40, -20, 0)), False)
sketch3.addGeometry(Part.LineSegment(Vector(40, -20, 0), Vector(40, 0, 0)), False)
sketch3.addGeometry(Part.LineSegment(Vector(34, -18, 0), Vector(-10, -18, 0)), False)
sketch3.addGeometry(Part.ArcOfCircle(Part.Circle(Vector(-10, -10, 0), Vector(0, 0, 1), 8), math.radians(90), math.radians(270)), False)
sketch3.addGeometry(Part.LineSegment(Vector(-10, -2, 0), Vector(34, -2, 0)), False)
sketch3.addGeometry(Part.ArcOfCircle(Part.Circle(Vector(40, -10, 0), Vector(0, 0, 1), 10), math.radians(127), math.radians(233)), False)
sketch3.addConstraint(Sketcher.Constraint("Tangent", 0, 2, 1, 1))
sketch3.addConstraint(Sketcher.Constraint("Tangent", 1, 2, 2, 1))
sketch3.addConstraint(Sketcher.Constraint("Coincident", 2, 2, 3, 1))
sketch3.addConstraint(Sketcher.Constraint("Coincident", 3, 2, 0, 1))
sketch3.addConstraint(Sketcher.Constraint("Tangent", 4, 2, 5, 2))
sketch3.addConstraint(Sketcher.Constraint("Tangent", 5, 1, 6, 1))
sketch3.addConstraint(Sketcher.Constraint("Coincident", 6, 2, 7, 1))
sketch3.addConstraint(Sketcher.Constraint("Coincident", 7, 2, 4, 1))
sketch3.addConstraint(Sketcher.Constraint("Horizontal", 0))
sketch3.addConstraint(Sketcher.Constraint("Horizontal", 2))
sketch3.addConstraint(Sketcher.Constraint("Vertical", 3))
sketch3.addConstraint(Sketcher.Constraint("Horizontal", 4))
sketch3.addConstraint(Sketcher.Constraint("Horizontal", 6))
sketch3.addConstraint(Sketcher.Constraint("Coincident", 5, 3, 1, 3))
sketch3.addConstraint(Sketcher.Constraint("Equal", 1, 7))
sketch3.addConstraint(Sketcher.Constraint("Horizontal", 5, 3, 7, 3))
sketch3.addConstraint(Sketcher.Constraint("Vertical", 7, 3, 2, 2))
sketch3.addConstraint(Sketcher.Constraint("DistanceX", 0, 2, 0, 1, Q("50 mm")))
sketch3.addConstraint(Sketcher.Constraint("DistanceY", 1, 3, -1, 1, Q("10 mm")))
sketch3.addConstraint(Sketcher.Constraint("DistanceY", 1, 2, 4, 2, Q("2 mm")))
sketch3.addConstraint(Sketcher.Constraint("DistanceX", 1, 3, -1, 1, Q("10.25 mm")))
sketch3.addConstraint(Sketcher.Constraint("Radius", 1, Q("9.739787 mm")))
sketch3.setExpression("Constraints[17]", "Params.sketch3_width")
pad3 = body.newObject("PartDesign::Pad", "Pad002")
pad3.Profile = sketch3
pad3.setExpression("Length", "Params.pad3_length")

# Sketch on XY plane
sketch4 = body.newObject("Sketcher::SketchObject", "Sketch003")
sketch4.AttachmentSupport = (doc.getObject("XY_Plane"), [""])
sketch4.MapMode = "FlatFace"
sketch4.AttachmentOffset = App.Placement(Vector(0, 0, -41.5), App.Rotation())
sketch4.addGeometry(Part.LineSegment(Vector(40, 0, 0), Vector(40, -20, 0)), False)
sketch4.addGeometry(Part.ArcOfCircle(Part.Circle(Vector(40, -10, 0), Vector(0, 0, 1), 10), math.radians(90), math.radians(270)), False)
sketch4.addConstraint(Sketcher.Constraint("Coincident", 0, 1, 1, 1))
sketch4.addConstraint(Sketcher.Constraint("Coincident", 1, 2, 0, 2))
sketch4.addConstraint(Sketcher.Constraint("Vertical", 0))
sketch4.addConstraint(Sketcher.Constraint("Vertical", 1, 3, 0, 1))
sketch4.addConstraint(Sketcher.Constraint("DistanceY", 1, 3, -1, 1, Q("10 mm")))
sketch4.addConstraint(Sketcher.Constraint("DistanceX", -1, 1, 1, 3, Q("39.75 mm")))
sketch4.addConstraint(Sketcher.Constraint("Radius", 1, Q("9.739787 mm")))
pad4 = body.newObject("PartDesign::Pad", "Pad003")
pad4.Profile = sketch4
pad4.setExpression("Length", "Params.pad4_length")

# Sketch on YZ plane
sketch5 = body.newObject("Sketcher::SketchObject", "Sketch004")
sketch5.AttachmentSupport = (doc.getObject("YZ_Plane"), [""])
sketch5.MapMode = "FlatFace"
sketch5.AttachmentOffset = App.Placement(Vector(0, 0, 39.75), App.Rotation())
add_polygon(sketch5, [(0, -34), (-17, -34), (-17, -42), (0, -42)])  # lines 0-3
sketch5.addConstraint(Sketcher.Constraint("Horizontal", 0))
sketch5.addConstraint(Sketcher.Constraint("Vertical", 1))
sketch5.addConstraint(Sketcher.Constraint("Horizontal", 2))
sketch5.addConstraint(Sketcher.Constraint("Vertical", 3))
sketch5.addConstraint(Sketcher.Constraint("DistanceY", 1, 2, 1, 1, Q("7.25 mm")))
sketch5.addConstraint(Sketcher.Constraint("DistanceY", 1, 2, -1, 1, Q("41.5 mm")))
sketch5.addConstraint(Sketcher.Constraint("DistanceX", 0, 2, 0, 1, Q("17.087357 mm")))
sketch5.addConstraint(Sketcher.Constraint("DistanceX", 0, 2, -1, 1, Q("17.34757 mm")))
sketch5.setExpression("Constraints[8]", "Params.sketch5_height")
pad5 = body.newObject("PartDesign::Pad", "Pad004")
pad5.Profile = sketch5
pad5.setExpression("Length", "Params.pad5_length")

# Sketch on XY plane
sketch6 = body.newObject("Sketcher::SketchObject", "Sketch005")
sketch6.AttachmentSupport = (doc.getObject("XY_Plane"), [""])
sketch6.MapMode = "FlatFace"
sketch6.AttachmentOffset = App.Placement(Vector(0, 0, -34.25), App.Rotation())
add_polygon(sketch6, [(61.8, -0.3), (59.5, -0.3), (59.8, -17.3), (61.8, -17.3)])  # lines 0-3
sketch6.addConstraint(Sketcher.Constraint("Horizontal", 0))
sketch6.addConstraint(Sketcher.Constraint("Horizontal", 2))
sketch6.addConstraint(Sketcher.Constraint("Vertical", 3))
sketch6.addConstraint(Sketcher.Constraint("DistanceX", 2, 1, 2, 2, Q("2 mm")))
sketch6.addConstraint(Sketcher.Constraint("DistanceX", 0, 2, 0, 1, Q("2.25 mm")))
sketch6.addConstraint(Sketcher.Constraint("DistanceX", -1, 1, 0, 2, Q("59.5 mm")))
sketch6.addConstraint(Sketcher.Constraint("DistanceY", 3, 1, 3, 2, Q("17.087357 mm")))
sketch6.addConstraint(Sketcher.Constraint("DistanceY", 1, 2, -1, 1, Q("17.34757 mm")))
sketch6.setExpression("Constraints[7]", "Params.sketch6_width")
sketch6.setExpression("Constraints[8]", "Params.sketch6_width2")
pad6 = body.newObject("PartDesign::Pad", "Pad005")
pad6.Profile = sketch6
pad6.setExpression("Length", "Params.pad6_length")

# Sketch on an angled plane
sketch7 = body.newObject("Sketcher::SketchObject", "Sketch006")
sketch7.Placement = App.Placement(Vector(59.48346, 0.870285, 0), App.Rotation(Vector(0, 0, 1), Vector(-0.014629135, 0.999892988, 0), Vector(-0.999892988, -0.014629135, 0), "ZXY"))
add_polygon(sketch7, [(6, -1), (6, -18), (12, -18), (12, -1)])  # lines 0-3
sketch7.addConstraint(Sketcher.Constraint("Vertical", 0))
sketch7.addConstraint(Sketcher.Constraint("Horizontal", 1))
sketch7.addConstraint(Sketcher.Constraint("Vertical", 2))
sketch7.addConstraint(Sketcher.Constraint("Horizontal", 3))
sketch7.addConstraint(Sketcher.Constraint("DistanceX", 1, 1, 1, 2, Q("6 mm")))
sketch7.addConstraint(Sketcher.Constraint("DistanceX", -1, 1, 0, 2, Q("6 mm")))
sketch7.addConstraint(Sketcher.Constraint("DistanceY", 0, 2, 0, 1, Q("17.089186 mm")))
sketch7.addConstraint(Sketcher.Constraint("DistanceY", 2, 2, -1, 1, Q("1.130619 mm")))
sketch7.setExpression("Constraints[8]", "Params.sketch7_width")
pad7 = body.newObject("PartDesign::Pad", "Pad006")
pad7.Profile = sketch7
pad7.setExpression("Length", "Params.pad7_length")

doc.recompute()
